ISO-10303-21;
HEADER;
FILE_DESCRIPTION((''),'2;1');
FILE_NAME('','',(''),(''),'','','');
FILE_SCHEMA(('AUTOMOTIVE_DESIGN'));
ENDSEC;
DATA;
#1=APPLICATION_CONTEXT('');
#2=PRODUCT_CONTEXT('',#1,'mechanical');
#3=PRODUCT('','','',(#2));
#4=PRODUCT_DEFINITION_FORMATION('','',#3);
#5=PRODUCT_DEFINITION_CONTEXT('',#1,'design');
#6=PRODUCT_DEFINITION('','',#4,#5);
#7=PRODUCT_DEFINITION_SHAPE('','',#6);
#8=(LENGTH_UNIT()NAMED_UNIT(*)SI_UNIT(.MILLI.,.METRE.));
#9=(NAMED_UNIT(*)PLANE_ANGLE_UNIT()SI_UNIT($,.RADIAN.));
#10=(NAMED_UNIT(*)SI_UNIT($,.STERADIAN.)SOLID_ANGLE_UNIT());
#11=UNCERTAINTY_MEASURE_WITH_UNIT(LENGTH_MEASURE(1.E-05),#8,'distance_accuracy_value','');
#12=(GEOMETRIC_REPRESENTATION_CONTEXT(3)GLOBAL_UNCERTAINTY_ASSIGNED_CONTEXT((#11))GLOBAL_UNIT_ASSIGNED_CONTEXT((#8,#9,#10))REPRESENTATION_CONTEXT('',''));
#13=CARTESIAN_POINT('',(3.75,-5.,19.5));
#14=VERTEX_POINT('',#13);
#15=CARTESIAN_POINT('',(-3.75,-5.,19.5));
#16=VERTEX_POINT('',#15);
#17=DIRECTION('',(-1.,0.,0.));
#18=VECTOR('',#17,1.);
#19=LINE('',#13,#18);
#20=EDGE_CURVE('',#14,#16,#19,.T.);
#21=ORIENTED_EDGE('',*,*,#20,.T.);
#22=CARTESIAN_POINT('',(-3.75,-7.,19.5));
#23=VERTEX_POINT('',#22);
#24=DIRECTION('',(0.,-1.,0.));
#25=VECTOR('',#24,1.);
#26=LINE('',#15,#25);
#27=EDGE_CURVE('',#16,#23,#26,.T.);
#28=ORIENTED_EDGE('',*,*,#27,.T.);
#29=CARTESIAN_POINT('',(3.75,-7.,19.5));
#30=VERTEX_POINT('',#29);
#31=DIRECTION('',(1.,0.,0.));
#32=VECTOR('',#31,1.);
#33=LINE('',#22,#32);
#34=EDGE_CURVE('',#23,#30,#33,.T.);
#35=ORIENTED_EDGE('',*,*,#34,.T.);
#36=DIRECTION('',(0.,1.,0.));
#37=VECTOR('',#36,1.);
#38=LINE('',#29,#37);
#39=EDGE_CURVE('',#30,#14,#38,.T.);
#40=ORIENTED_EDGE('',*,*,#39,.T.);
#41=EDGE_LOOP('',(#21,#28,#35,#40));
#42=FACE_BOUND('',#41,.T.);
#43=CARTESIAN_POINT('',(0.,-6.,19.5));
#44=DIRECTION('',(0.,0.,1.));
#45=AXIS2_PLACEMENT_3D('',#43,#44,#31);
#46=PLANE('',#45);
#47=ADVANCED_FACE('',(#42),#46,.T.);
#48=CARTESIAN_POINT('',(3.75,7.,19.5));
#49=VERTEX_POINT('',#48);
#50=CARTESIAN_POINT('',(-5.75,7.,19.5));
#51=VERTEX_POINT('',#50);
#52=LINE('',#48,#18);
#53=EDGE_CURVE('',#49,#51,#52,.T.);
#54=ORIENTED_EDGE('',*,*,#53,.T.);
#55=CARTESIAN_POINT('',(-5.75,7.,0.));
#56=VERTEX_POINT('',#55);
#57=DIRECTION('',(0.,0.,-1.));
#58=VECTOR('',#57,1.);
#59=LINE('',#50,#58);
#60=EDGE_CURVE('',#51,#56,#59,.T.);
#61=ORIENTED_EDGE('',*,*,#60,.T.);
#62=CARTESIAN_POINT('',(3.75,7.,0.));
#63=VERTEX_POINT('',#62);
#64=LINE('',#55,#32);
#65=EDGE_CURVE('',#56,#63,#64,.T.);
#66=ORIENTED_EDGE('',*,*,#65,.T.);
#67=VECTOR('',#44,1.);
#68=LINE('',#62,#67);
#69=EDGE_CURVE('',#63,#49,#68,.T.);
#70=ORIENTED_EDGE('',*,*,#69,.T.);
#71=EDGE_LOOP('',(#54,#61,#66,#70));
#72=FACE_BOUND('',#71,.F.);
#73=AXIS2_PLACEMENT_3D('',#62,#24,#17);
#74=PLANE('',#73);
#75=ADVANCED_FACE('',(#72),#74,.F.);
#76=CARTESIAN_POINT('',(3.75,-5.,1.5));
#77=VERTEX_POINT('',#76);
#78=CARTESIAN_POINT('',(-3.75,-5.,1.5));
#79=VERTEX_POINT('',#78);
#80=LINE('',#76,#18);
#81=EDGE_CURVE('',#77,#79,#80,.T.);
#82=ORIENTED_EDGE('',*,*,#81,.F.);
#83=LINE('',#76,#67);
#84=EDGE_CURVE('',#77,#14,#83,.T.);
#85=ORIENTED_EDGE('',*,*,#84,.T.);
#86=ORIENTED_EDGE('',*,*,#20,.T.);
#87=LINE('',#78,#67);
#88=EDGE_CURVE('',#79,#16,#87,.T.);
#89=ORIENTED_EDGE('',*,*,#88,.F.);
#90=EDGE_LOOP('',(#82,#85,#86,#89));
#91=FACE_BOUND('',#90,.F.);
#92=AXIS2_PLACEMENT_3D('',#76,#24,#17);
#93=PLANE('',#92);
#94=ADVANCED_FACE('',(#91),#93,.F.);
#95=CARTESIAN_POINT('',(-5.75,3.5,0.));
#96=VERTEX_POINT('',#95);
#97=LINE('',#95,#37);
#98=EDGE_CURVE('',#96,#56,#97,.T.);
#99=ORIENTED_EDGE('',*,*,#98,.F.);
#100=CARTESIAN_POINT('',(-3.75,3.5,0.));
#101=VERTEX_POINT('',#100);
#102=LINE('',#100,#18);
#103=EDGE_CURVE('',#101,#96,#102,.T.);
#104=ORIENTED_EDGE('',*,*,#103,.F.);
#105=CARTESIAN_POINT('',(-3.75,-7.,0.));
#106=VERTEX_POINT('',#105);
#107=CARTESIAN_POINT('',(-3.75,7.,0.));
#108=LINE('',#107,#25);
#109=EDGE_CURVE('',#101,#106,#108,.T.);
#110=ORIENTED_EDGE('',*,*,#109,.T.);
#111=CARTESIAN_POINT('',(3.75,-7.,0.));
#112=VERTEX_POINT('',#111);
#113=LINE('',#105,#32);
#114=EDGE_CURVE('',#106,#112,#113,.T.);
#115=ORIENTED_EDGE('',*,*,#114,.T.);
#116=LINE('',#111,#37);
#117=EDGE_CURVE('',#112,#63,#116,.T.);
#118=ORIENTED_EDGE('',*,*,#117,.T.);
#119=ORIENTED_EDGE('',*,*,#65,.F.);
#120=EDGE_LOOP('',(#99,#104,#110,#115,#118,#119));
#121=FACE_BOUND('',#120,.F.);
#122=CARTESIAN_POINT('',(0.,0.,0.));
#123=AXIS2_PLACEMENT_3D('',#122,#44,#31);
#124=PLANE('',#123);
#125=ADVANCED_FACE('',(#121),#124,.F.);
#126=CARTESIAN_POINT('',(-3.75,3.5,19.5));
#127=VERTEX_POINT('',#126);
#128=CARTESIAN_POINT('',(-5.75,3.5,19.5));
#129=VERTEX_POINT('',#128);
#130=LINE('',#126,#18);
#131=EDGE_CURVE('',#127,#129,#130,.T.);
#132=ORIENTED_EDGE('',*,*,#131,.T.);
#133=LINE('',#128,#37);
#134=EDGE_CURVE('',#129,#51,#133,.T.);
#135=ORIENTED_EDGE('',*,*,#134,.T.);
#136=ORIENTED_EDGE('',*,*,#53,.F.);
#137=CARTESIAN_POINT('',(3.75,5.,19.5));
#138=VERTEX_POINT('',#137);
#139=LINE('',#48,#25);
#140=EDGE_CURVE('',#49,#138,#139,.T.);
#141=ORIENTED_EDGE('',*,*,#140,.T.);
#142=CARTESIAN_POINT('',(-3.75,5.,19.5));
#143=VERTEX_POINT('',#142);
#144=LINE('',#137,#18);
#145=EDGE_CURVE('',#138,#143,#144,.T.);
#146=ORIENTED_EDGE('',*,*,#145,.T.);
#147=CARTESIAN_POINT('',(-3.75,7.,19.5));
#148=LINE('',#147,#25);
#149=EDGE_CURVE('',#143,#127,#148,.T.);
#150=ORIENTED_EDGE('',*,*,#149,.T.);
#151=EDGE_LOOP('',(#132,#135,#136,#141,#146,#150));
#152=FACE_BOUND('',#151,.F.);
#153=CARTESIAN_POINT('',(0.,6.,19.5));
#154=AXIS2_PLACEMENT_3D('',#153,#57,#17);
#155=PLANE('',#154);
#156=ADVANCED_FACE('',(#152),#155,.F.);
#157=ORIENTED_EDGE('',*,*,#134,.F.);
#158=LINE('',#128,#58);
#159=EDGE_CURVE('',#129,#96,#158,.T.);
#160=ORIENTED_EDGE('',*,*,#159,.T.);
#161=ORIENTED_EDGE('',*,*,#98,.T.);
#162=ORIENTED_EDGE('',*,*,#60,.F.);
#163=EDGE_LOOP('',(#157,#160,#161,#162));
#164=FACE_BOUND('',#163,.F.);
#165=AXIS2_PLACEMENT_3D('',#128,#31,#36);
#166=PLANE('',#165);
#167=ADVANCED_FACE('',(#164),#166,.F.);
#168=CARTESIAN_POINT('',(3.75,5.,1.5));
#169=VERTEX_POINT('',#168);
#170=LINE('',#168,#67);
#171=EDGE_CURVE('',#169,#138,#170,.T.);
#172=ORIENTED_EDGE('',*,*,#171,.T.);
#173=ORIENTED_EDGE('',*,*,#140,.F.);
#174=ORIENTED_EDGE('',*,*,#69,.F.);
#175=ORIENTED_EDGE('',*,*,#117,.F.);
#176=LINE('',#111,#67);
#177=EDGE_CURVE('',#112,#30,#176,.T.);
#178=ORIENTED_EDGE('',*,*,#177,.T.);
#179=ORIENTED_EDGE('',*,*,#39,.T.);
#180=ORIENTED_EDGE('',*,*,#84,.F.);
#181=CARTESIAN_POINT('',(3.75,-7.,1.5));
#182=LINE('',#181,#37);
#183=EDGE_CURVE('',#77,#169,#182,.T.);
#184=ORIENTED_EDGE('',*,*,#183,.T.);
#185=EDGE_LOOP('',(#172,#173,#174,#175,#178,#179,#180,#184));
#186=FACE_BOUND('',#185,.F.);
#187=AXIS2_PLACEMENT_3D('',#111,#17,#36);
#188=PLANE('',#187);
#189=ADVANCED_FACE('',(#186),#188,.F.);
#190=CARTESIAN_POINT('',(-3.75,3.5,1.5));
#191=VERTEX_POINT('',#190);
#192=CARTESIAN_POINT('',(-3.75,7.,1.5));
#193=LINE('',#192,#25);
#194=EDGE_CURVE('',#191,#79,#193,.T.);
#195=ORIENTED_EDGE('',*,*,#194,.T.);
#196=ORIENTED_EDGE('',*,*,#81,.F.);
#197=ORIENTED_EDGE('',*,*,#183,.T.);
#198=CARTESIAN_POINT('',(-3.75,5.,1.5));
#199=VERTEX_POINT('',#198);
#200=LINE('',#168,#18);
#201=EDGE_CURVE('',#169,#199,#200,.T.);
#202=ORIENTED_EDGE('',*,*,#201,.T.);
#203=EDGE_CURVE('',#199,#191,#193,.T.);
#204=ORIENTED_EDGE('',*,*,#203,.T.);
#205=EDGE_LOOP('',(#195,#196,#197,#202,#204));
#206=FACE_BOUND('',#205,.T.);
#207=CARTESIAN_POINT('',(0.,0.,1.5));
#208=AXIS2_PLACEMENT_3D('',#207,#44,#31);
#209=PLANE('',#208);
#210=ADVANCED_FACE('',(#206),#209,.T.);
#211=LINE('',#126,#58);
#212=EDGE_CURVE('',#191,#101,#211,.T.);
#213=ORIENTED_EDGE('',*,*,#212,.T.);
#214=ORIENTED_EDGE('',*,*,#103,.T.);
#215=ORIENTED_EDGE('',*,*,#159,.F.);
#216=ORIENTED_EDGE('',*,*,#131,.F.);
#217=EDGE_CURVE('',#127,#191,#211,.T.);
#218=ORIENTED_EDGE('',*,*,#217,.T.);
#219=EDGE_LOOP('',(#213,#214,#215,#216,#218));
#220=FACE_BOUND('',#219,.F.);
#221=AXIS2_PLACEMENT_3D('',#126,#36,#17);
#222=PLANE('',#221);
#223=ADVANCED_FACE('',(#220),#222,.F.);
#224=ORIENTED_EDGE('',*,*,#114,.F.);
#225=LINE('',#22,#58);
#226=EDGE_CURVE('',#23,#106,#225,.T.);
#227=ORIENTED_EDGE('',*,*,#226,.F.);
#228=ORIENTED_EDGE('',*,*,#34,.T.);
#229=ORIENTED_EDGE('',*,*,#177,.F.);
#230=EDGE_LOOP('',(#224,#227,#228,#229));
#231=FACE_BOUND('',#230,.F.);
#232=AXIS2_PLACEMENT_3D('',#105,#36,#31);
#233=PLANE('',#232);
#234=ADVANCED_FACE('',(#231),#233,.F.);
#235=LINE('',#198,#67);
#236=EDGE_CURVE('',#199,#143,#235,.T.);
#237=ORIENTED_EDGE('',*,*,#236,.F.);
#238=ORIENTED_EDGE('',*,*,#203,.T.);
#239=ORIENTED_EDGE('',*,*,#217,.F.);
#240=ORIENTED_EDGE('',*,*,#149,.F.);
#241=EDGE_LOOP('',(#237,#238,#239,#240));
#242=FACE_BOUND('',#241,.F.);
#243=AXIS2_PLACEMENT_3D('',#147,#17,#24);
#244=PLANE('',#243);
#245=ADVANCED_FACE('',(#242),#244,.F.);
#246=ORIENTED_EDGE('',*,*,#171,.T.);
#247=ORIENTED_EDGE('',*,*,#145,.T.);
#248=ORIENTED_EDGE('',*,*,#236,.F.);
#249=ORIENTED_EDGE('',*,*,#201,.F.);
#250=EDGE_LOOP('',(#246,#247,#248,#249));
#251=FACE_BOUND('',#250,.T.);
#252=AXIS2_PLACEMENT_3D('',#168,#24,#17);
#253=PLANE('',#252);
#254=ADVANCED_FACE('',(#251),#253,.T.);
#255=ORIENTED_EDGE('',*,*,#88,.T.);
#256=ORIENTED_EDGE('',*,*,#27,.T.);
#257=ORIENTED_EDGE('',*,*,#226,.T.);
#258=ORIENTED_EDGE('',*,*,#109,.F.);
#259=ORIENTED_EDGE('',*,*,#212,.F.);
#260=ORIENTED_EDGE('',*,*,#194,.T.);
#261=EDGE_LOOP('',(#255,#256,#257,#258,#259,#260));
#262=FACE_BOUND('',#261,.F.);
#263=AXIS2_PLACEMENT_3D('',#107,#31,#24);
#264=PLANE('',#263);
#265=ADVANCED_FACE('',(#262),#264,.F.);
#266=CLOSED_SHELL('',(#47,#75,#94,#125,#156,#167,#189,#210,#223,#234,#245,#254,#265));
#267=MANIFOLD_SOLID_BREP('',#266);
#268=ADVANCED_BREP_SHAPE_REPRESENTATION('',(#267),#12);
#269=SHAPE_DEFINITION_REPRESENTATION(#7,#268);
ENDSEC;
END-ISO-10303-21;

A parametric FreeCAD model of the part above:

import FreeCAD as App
import Part
import Sketcher
Q = App.Units.Quantity

doc = App.newDocument("Part")
body = doc.addObject("PartDesign::Body", "Body")

sketch1 = body.newObject("Sketcher::SketchObject", "Sketch")
sketch1.AttachmentSupport = (doc.getObject("XY_Plane"), [""])
sketch1.MapMode = "FlatFace"
sketch1.addGeometry(Part.LineSegment(App.Vector(-3.75, 7, 0), App.Vector(-3.75, -7, 0)), False)
sketch1.addGeometry(Part.LineSegment(App.Vector(-3.75, -7, 0), App.Vector(3.75, -7, 0)), False)
sketch1.addGeometry(Part.LineSegment(App.Vector(3.75, -7, 0), App.Vector(3.75, 7, 0)), False)
sketch1.addGeometry(Part.LineSegment(App.Vector(3.75, 7, 0), App.Vector(-3.75, 7, 0)), False)
sketch1.addConstraint(Sketcher.Constraint("Coincident", 0, 2, 1, 1))
sketch1.addConstraint(Sketcher.Constraint("Coincident", 1, 2, 2, 1))
sketch1.addConstraint(Sketcher.Constraint("Coincident", 2, 2, 3, 1))
sketch1.addConstraint(Sketcher.Constraint("Coincident", 3, 2, 0, 1))
sketch1.addConstraint(Sketcher.Constraint("Vertical", 0))
sketch1.addConstraint(Sketcher.Constraint("Horizontal", 1))
sketch1.addConstraint(Sketcher.Constraint("Vertical", 2))
sketch1.addConstraint(Sketcher.Constraint("Horizontal", 3))
sketch1.addConstraint(Sketcher.Constraint("Symmetric", 0, 2, 2, 2, -1, 1))
sketch1.addConstraint(Sketcher.Constraint("DistanceY", 0, 2, 0, 1, Q("14 mm")))
sketch1.addConstraint(Sketcher.Constraint("DistanceX", 0, 2, -1, 1, Q("3.75 mm")))
pad1 = body.newObject("PartDesign::Pad", "Pad")
pad1.Profile = sketch1
pad1.Length = 1.5

sketch2 = body.newObject("Sketcher::SketchObject", "Sketch001")
sketch2.AttachmentSupport = (doc.getObject("XY_Plane"), [""])
sketch2.MapMode = "FlatFace"
sketch2.AttachmentOffset = App.Placement(App.Vector(0, 0, 1.5), App.Rotation())
sketch2.addGeometry(Part.LineSegment(App.Vector(3.75, 7, 0), App.Vector(-3.75, 7, 0)), False)
sketch2.addGeometry(Part.LineSegment(App.Vector(-3.75, 7, 0), App.Vector(-3.75, 5, 0)), False)
sketch2.addGeometry(Part.LineSegment(App.Vector(-3.75, 5, 0), App.Vector(3.75, 5, 0)), False)
sketch2.addGeometry(Part.LineSegment(App.Vector(3.75, 5, 0), App.Vector(3.75, 7, 0)), False)
sketch2.addGeometry(Part.LineSegment(App.Vector(-3.75, -5, 0), App.Vector(-3.75, -7, 0)), False)
sketch2.addGeometry(Part.LineSegment(App.Vector(-3.75, -7, 0), App.Vector(3.75, -7, 0)), False)
sketch2.addGeometry(Part.LineSegment(App.Vector(3.75, -7, 0), App.Vector(3.75, -5, 0)), False)
sketch2.addGeometry(Part.LineSegment(App.Vector(3.75, -5, 0), App.Vector(-3.75, -5, 0)), False)
sketch2.addConstraint(Sketcher.Constraint("Coincident", 0, 2, 1, 1))
sketch2.addConstraint(Sketcher.Constraint("Coincident", 1, 2, 2, 1))
sketch2.addConstraint(Sketcher.Constraint("Coincident", 2, 2, 3, 1))
sketch2.addConstraint(Sketcher.Constraint("Coincident", 3, 2, 0, 1))
sketch2.addConstraint(Sketcher.Constraint("Coincident", 4, 2, 5, 1))
sketch2.addConstraint(Sketcher.Constraint("Coincident", 5, 2, 6, 1))
sketch2.addConstraint(Sketcher.Constraint("Coincident", 6, 2, 7, 1))
sketch2.addConstraint(Sketcher.Constraint("Coincident", 7, 2, 4, 1))
sketch2.addConstraint(Sketcher.Constraint("Horizontal", 0))
sketch2.addConstraint(Sketcher.Constraint("Vertical", 1))
sketch2.addConstraint(Sketcher.Constraint("Horizontal", 2))
sketch2.addConstraint(Sketcher.Constraint("Vertical", 3))
sketch2.addConstraint(Sketcher.Constraint("Vertical", 4))
sketch2.addConstraint(Sketcher.Constraint("Horizontal", 5))
sketch2.addConstraint(Sketcher.Constraint("Vertical", 6))
sketch2.addConstraint(Sketcher.Constraint("Horizontal", 7))
sketch2.addConstraint(Sketcher.Constraint("Symmetric", 3, 2, 4, 2, -1, 1))
sketch2.addConstraint(Sketcher.Constraint("Symmetric", 1, 2, 6, 2, -1, 1))
sketch2.addConstraint(Sketcher.Constraint("Vertical", 1, 2, 4, 2))
sketch2.addConstraint(Sketcher.Constraint("DistanceY", 1, 2, 1, 1, Q("2 mm")))
sketch2.addConstraint(Sketcher.Constraint("DistanceX", 0, 2, -1, 1, Q("3.75 mm")))
sketch2.addConstraint(Sketcher.Constraint("DistanceY", -1, 1, 0, 2, Q("7 mm")))
pad2 = body.newObject("PartDesign::Pad", "Pad001")
pad2.Profile = sketch2
pad2.Length = 18

sketch3 = body.newObject("Sketcher::SketchObject", "Sketch002")
sketch3.AttachmentSupport = (doc.getObject("XY_Plane"), [""])
sketch3.MapMode = "FlatFace"
sketch3.AttachmentOffset = App.Placement(App.Vector(0, 0, 19.5), App.Rotation())
sketch3.addGeometry(Part.LineSegment(App.Vector(-3.75, 3.5, 0), App.Vector(-3.75, 7, 0)), False)
sketch3.addGeometry(Part.LineSegment(App.Vector(-3.75, 7, 0), App.Vector(-5.75, 7, 0)), False)
sketch3.addGeometry(Part.LineSegment(App.Vector(-5.75, 7, 0), App.Vector(-5.75, 3.5, 0)), False)
sketch3.addGeometry(Part.LineSegment(App.Vector(-5.75, 3.5, 0), App.Vector(-3.75, 3.5, 0)), False)
sketch3.addConstraint(Sketcher.Constraint("Coincident", 0, 2, 1, 1))
sketch3.addConstraint(Sketcher.Constraint("Coincident", 1, 2, 2, 1))
sketch3.addConstraint(Sketcher.Constraint("Coincident", 2, 2, 3, 1))
sketch3.addConstraint(Sketcher.Constraint("Coincident", 3, 2, 0, 1))
sketch3.addConstraint(Sketcher.Constraint("Vertical", 0))
sketch3.addConstraint(Sketcher.Constraint("Horizontal", 1))
sketch3.addConstraint(Sketcher.Constraint("Vertical", 2))
sketch3.addConstraint(Sketcher.Constraint("Horizontal", 3))
sketch3.addConstraint(Sketcher.Constraint("DistanceX", 1, 2, 1, 1, Q("2 mm")))
sketch3.addConstraint(Sketcher.Constraint("DistanceY", 0, 1, 0, 2, Q("3.5 mm")))
sketch3.addConstraint(Sketcher.Constraint("DistanceY", -1, 1, 0, 2, Q("7 mm")))
sketch3.addConstraint(Sketcher.Constraint("DistanceX", 0, 2, -1, 1, Q("3.75 mm")))
pad3 = body.newObject("PartDesign::Pad", "Pad002")
pad3.Profile = sketch3
pad3.Length = 19.5
pad3.Reversed = True

doc.recompute()
